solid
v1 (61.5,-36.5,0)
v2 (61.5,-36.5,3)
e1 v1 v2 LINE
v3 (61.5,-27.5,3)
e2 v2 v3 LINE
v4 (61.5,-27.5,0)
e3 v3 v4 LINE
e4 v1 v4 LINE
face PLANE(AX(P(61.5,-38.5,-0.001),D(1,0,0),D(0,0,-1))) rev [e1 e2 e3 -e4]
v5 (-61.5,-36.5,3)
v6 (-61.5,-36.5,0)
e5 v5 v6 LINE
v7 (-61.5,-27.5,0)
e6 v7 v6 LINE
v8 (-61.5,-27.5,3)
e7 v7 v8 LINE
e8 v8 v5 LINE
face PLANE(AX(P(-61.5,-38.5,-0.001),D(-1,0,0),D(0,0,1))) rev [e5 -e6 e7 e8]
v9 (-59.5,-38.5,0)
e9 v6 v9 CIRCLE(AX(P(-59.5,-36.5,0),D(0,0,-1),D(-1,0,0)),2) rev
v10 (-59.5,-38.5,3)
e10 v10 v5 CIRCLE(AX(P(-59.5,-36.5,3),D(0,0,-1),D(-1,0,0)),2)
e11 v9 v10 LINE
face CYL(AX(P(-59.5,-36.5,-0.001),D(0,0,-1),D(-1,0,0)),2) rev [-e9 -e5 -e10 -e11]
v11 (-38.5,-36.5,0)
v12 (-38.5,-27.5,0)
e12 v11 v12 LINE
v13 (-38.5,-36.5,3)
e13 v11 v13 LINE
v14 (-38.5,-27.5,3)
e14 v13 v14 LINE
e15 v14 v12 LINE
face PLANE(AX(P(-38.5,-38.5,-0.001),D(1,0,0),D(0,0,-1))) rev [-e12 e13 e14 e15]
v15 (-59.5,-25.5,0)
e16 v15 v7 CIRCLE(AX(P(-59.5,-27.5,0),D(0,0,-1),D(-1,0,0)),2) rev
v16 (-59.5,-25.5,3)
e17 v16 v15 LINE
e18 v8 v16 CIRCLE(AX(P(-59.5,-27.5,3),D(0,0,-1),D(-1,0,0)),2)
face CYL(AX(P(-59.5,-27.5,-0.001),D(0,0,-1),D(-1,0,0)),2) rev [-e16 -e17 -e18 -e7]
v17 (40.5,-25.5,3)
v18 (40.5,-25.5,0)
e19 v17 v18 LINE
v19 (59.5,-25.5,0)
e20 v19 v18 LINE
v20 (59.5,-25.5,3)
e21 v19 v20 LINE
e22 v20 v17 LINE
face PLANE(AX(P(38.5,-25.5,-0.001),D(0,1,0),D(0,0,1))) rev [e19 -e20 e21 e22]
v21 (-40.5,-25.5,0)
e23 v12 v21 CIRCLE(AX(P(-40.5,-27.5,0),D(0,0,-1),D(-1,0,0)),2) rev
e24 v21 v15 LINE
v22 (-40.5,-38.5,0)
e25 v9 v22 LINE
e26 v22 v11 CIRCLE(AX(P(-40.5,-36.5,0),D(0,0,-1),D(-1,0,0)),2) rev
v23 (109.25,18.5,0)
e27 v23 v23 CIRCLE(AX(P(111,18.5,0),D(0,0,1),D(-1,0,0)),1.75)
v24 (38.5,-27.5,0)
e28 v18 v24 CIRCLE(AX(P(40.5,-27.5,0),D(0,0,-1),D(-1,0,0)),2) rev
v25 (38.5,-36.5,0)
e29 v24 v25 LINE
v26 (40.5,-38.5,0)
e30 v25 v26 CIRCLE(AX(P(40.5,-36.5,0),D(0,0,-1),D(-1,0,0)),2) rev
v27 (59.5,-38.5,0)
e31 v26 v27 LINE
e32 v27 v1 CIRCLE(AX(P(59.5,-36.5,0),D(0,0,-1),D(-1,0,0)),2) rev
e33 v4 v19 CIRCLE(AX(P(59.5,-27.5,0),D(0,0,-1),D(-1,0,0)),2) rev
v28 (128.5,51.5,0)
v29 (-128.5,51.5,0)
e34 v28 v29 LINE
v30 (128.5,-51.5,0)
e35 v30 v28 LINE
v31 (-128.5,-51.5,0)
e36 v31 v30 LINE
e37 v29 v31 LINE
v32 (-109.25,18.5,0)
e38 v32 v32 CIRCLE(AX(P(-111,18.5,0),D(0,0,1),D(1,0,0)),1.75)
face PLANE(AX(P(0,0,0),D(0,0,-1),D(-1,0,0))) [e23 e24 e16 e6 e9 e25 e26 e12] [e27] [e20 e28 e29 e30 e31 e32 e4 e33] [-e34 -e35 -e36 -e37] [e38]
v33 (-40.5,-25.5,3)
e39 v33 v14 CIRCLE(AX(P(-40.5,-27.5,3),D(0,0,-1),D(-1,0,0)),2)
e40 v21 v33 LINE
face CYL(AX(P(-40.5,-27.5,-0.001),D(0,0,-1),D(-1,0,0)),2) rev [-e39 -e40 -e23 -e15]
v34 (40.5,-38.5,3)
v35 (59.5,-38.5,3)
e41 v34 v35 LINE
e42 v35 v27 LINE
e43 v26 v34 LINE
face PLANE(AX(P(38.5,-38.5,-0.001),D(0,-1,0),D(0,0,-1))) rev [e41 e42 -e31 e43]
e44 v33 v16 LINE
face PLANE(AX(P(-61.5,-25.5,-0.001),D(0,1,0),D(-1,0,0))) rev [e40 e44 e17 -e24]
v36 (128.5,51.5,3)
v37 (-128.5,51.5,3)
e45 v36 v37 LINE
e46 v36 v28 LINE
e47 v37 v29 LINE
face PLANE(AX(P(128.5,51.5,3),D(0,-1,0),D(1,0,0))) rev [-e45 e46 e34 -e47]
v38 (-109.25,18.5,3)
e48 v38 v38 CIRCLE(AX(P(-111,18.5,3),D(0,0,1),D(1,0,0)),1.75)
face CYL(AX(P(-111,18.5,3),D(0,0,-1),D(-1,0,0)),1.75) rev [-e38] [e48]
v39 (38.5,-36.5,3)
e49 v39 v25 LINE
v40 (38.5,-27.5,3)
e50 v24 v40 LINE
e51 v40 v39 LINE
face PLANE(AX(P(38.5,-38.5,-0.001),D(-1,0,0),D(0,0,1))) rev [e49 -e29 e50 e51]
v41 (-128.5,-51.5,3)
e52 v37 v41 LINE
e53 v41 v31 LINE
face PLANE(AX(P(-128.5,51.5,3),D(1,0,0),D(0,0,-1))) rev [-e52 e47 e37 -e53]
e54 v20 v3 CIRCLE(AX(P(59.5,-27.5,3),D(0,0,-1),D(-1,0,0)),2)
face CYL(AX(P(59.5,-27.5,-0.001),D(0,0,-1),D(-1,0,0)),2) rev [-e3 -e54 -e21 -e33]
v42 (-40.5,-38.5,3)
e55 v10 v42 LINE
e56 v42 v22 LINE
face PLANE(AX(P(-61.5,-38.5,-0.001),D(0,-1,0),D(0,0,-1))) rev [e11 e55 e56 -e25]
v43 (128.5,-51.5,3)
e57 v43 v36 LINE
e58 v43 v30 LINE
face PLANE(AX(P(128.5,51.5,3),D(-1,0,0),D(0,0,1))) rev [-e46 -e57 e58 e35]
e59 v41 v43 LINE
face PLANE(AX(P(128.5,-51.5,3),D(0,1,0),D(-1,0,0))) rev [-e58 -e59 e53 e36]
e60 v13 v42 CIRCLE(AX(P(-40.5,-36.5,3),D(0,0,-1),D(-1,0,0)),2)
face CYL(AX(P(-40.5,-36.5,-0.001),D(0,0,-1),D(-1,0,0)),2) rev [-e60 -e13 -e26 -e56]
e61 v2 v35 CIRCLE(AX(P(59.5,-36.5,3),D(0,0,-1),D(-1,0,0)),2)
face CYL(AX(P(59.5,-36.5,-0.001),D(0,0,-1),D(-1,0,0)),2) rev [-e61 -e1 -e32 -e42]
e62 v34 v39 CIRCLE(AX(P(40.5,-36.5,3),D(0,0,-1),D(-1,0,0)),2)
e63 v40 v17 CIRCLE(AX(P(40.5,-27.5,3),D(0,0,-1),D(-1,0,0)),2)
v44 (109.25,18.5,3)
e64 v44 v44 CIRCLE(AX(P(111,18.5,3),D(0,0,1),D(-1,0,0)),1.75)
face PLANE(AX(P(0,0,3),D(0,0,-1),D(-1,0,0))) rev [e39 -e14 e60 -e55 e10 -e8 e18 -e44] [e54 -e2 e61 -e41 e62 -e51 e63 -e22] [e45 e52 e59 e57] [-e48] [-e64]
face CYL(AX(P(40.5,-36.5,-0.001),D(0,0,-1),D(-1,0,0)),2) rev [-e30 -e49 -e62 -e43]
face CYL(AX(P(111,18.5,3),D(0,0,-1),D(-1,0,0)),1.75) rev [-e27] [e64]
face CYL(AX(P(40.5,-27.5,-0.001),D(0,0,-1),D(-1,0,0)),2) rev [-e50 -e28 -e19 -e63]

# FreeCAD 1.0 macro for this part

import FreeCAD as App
import Part
import Sketcher

V = App.Vector


def edges_at(feature, points):
    """Names of the edges that pass closest to the given points."""
    edges = feature.Shape.Edges
    near = lambda p: min(range(len(edges)), key=lambda i: edges[i].distToShape(Part.Vertex(*p))[0])
    return sorted({f"Edge{near(p) + 1}" for p in points})

doc = App.newDocument("Part")
body = doc.addObject("PartDesign::Body", "Body")

# Sketch on XY plane
sketch1 = doc.addObject("Sketcher::SketchObject", "Sketch")
body.addObject(sketch1)
sketch1.AttachmentSupport = (doc.XY_Plane, [""])
sketch1.MapMode = "FlatFace"
sketch1.addGeometry(Part.LineSegment(V(-128.5, 51.5, 0), V(-128.5, -51.5, 0)), False)
sketch1.addGeometry(Part.LineSegment(V(-128.5, -51.5, 0), V(128.5, -51.5, 0)), False)
sketch1.addGeometry(Part.LineSegment(V(128.5, -51.5, 0), V(128.5, 51.5, 0)), False)
sketch1.addGeometry(Part.LineSegment(V(128.5, 51.5, 0), V(-128.5, 51.5, 0)), False)
sketch1.addGeometry(Part.Circle(V(-111, 18.5, 0), V(0, 0, 1), 1.8), False)
sketch1.addGeometry(Part.Circle(V(111, 18.5, 0), V(0, 0, 1), 1.8), False)
sketch1.addConstraint(Sketcher.Constraint("Coincident", 0, 2, 1, 1))
sketch1.addConstraint(Sketcher.Constraint("Coincident", 1, 2, 2, 1))
sketch1.addConstraint(Sketcher.Constraint("Coincident", 2, 2, 3, 1))
sketch1.addConstraint(Sketcher.Constraint("Coincident", 3, 2, 0, 1))
sketch1.addConstraint(Sketcher.Constraint("Vertical", 0))
sketch1.addConstraint(Sketcher.Constraint("Horizontal", 1))
sketch1.addConstraint(Sketcher.Constraint("Vertical", 2))
sketch1.addConstraint(Sketcher.Constraint("Horizontal", 3))
sketch1.addConstraint(Sketcher.Constraint("Equal", 4, 5))
sketch1.addConstraint(Sketcher.Constraint("Symmetric", 0, 2, 2, 2, -1, 1))
sketch1.addConstraint(Sketcher.Constraint("Symmetric", 4, 3, 5, 3, -2))
sketch1.addConstraint(Sketcher.Constraint("Diameter", 4, 3.5))
sketch1.addConstraint(Sketcher.Constraint("DistanceX", 1, 1, 1, 2, 257.0))
sketch1.addConstraint(Sketcher.Constraint("DistanceY", 0, 2, 0, 1, 103.0))
sketch1.addConstraint(Sketcher.Constraint("DistanceX", 4, 3, -1, 1, 111.0))
sketch1.addConstraint(Sketcher.Constraint("DistanceY", 0, 2, 4, 3, 70.0))
pad1 = doc.addObject("PartDesign::Pad", "Pad")
body.addObject(pad1)
pad1.Profile = sketch1
pad1.Length = 3

# Sketch on XY plane
sketch2 = doc.addObject("Sketcher::SketchObject", "Sketch001")
body.addObject(sketch2)
sketch2.AttachmentSupport = (doc.XY_Plane, [""])
sketch2.MapMode = "FlatFace"
sketch2.AttachmentOffset = App.Placement(V(0, 0, 3), App.Rotation())
sketch2.addGeometry(Part.LineSegment(V(-62, -26, 0), V(-62, -38, 0)), False)
sketch2.addGeometry(Part.LineSegment(V(-62, -38, 0), V(-38, -38, 0)), False)
sketch2.addGeometry(Part.LineSegment(V(-38, -38, 0), V(-38, -26, 0)), False)
sketch2.addGeometry(Part.LineSegment(V(-38, -26, 0), V(-62, -26, 0)), False)
sketch2.addConstraint(Sketcher.Constraint("Coincident", 0, 2, 1, 1))
sketch2.addConstraint(Sketcher.Constraint("Coincident", 1, 2, 2, 1))
sketch2.addConstraint(Sketcher.Constraint("Coincident", 2, 2, 3, 1))
sketch2.addConstraint(Sketcher.Constraint("Coincident", 3, 2, 0, 1))
sketch2.addConstraint(Sketcher.Constraint("Vertical", 0))
sketch2.addConstraint(Sketcher.Constraint("Horizontal", 1))
sketch2.addConstraint(Sketcher.Constraint("Vertical", 2))
sketch2.addConstraint(Sketcher.Constraint("Horizontal", 3))
sketch2.addConstraint(Sketcher.Constraint("DistanceX", 1, 1, 1, 2, 23.0))
sketch2.addConstraint(Sketcher.Constraint("DistanceY", 0, 2, 0, 1, 13.0))
sketch2.addConstraint(Sketcher.Constraint("DistanceX", 0, 2, -1, 1, 61.5))
sketch2.addConstraint(Sketcher.Constraint("DistanceY", 0, 2, -1, 1, 38.5))
pocket1 = doc.addObject("PartDesign::Pocket", "Pocket")
body.addObject(pocket1)
pocket1.Profile = sketch2
pocket1.Type = "UpToFirst"

# Sketch on XY plane
sketch3 = doc.addObject("Sketcher::SketchObject", "Sketch002")
body.addObject(sketch3)
sketch3.AttachmentSupport = (doc.XY_Plane, [""])
sketch3.MapMode = "FlatFace"
sketch3.AttachmentOffset = App.Placement(V(0, 0, 3), App.Rotation())
sketch3.addGeometry(Part.LineSegment(V(38, -26, 0), V(38, -38, 0)), False)
sketch3.addGeometry(Part.LineSegment(V(38, -38, 0), V(62, -38, 0)), False)
sketch3.addGeometry(Part.LineSegment(V(62, -38, 0), V(62, -26, 0)), False)
sketch3.addGeometry(Part.LineSegment(V(62, -26, 0), V(38, -26, 0)), False)
sketch3.addConstraint(Sketcher.Constraint("Coincident", 0, 2, 1, 1))
sketch3.addConstraint(Sketcher.Constraint("Coincident", 1, 2, 2, 1))
sketch3.addConstraint(Sketcher.Constraint("Coincident", 2, 2, 3, 1))
sketch3.addConstraint(Sketcher.Constraint("Coincident", 3, 2, 0, 1))
sketch3.addConstraint(Sketcher.Constraint("Vertical", 0))
sketch3.addConstraint(Sketcher.Constraint("Horizontal", 1))
sketch3.addConstraint(Sketcher.Constraint("Vertical", 2))
sketch3.addConstraint(Sketcher.Constraint("Horizontal", 3))
sketch3.addConstraint(Sketcher.Constraint("DistanceX", 1, 1, 1, 2, 23.0))
sketch3.addConstraint(Sketcher.Constraint("DistanceY", 0, 2, 0, 1, 13.0))
sketch3.addConstraint(Sketcher.Constraint("DistanceX", -1, 1, 0, 2, 38.5))
sketch3.addConstraint(Sketcher.Constraint("DistanceY", 0, 2, -1, 1, 38.5))
pocket2 = doc.addObject("PartDesign::Pocket", "Pocket001")
body.addObject(pocket2)
pocket2.Profile = sketch3
pocket2.Type = "UpToFirst"
doc.recompute()

fillet = doc.addObject("PartDesign::Fillet", "Fillet")
body.addObject(fillet)
fillet.Base = (pocket2, edges_at(pocket2, [
    (-61.5, -38.5, 1.5),
    (-61.5, -25.5, 1.5),
    (-38.5, -25.5, 1.5),
    (-38.5, -38.5, 1.5),
    (38.5, -38.5, 1.5),
    (38.5, -25.5, 1.5),
    (61.5, -25.5, 1.5),
    (61.5, -38.5, 1.5),
]))
fillet.Radius = 2

doc.recompute()
